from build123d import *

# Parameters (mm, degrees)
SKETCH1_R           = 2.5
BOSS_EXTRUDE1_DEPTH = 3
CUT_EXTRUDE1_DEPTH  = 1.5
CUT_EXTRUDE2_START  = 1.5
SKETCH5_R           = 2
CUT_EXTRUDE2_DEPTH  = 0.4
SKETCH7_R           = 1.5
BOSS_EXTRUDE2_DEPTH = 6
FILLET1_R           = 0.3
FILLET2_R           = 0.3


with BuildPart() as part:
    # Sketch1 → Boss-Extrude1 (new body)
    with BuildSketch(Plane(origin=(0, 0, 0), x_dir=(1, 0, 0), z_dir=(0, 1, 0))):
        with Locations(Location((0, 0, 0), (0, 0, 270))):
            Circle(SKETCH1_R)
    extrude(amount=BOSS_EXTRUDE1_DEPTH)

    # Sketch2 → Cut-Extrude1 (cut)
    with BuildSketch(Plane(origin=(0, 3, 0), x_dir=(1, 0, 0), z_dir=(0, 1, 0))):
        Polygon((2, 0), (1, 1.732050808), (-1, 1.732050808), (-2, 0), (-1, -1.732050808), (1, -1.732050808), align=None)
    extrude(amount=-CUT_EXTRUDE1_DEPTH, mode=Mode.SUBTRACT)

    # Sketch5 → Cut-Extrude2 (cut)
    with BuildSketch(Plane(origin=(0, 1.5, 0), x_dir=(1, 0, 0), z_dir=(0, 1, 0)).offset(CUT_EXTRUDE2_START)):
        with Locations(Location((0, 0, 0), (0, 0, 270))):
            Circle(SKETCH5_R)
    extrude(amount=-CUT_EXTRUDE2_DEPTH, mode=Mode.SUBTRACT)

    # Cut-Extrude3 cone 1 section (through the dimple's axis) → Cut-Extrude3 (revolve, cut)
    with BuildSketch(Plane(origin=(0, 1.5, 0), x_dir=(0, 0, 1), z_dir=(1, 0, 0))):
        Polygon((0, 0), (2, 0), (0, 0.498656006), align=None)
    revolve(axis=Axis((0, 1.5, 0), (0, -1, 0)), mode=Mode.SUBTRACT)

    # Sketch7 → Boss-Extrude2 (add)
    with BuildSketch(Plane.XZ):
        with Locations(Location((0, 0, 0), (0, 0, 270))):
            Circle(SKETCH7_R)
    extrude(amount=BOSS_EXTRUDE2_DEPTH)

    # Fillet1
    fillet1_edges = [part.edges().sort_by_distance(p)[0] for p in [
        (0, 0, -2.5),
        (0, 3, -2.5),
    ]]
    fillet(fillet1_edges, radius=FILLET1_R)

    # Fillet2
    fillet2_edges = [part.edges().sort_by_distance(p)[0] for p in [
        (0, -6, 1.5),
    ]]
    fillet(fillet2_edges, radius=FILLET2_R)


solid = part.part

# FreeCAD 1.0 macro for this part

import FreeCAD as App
import Part
import Sketcher
from FreeCAD import Vector
Q = App.Units.Quantity


def edges_at(feature, points):
    """Names of the edges that pass closest to the given points."""
    edges = feature.Shape.Edges
    near = lambda p: min(range(len(edges)), key=lambda i: edges[i].distToShape(Part.Vertex(*p))[0])
    return sorted({f"Edge{near(p) + 1}" for p in points})


def add_polygon(sketch, points):
    """Adds a closed chain of lines whose ends are joined by coincident constraints."""
    first, n = sketch.GeometryCount, len(points)
    for a, b in zip(points, points[1:] + points[:1]):
        sketch.addGeometry(Part.LineSegment(App.Vector(*a, 0), App.Vector(*b, 0)), False)
    for i in range(n):
        sketch.addConstraint(Sketcher.Constraint("Coincident", first + i, 2, first + (i + 1) % n, 1))

doc = App.newDocument("Part")
params = doc.addObject("Spreadsheet::Sheet", "Params")
for row, (alias, value) in enumerate([
    ("sketch1_diameter", "5 mm"),
    ("pad1_length", "3 mm"),
    ("sketch2_width", "2 mm"),
    ("sketch2_length", "2 mm"),
    ("pocket1_length", "1.5 mm"),
    ("sketch3_diameter", "4 mm"),
    ("pocket2_length", "0.4 mm"),
    ("sketch4_height", "2 mm"),
    ("groove_angle", "360 deg"),
    ("sketch5_diameter", "3 mm"),
    ("pad2_length", "6 mm"),
    ("fillet_radius", "0.3 mm"),
    ("fillet2_radius", "0.3 mm"),
], start=1):
    params.set(f"A{row}", alias)
    params.set(f"B{row}", "=" + value)
    params.setAlias(f"B{row}", alias)

body = doc.addObject("PartDesign::Body", "Body")

# Sketch on XZ plane
sketch1 = body.newObject("Sketcher::SketchObject", "Sketch")
sketch1.AttachmentSupport = (doc.getObject("XZ_Plane"), [""])
sketch1.MapMode = "FlatFace"
sketch1.addGeometry(Part.Circle(Vector(0, 0, 0), Vector(0, 0, 1), 2.5), False)
sketch1.addConstraint(Sketcher.Constraint("Coincident", 0, 3, -1, 1))
sketch1.addConstraint(Sketcher.Constraint("Diameter", 0, 5.0))
sketch1.setExpression("Constraints[1]", "Params.sketch1_diameter")
pad1 = body.newObject("PartDesign::Pad", "Pad")
pad1.Profile = sketch1
pad1.setExpression("Length", "Params.pad1_length")
pad1.Reversed = True

# Sketch on XZ plane
sketch2 = body.newObject("Sketcher::SketchObject", "Sketch001")
sketch2.AttachmentSupport = (doc.getObject("XZ_Plane"), [""])
sketch2.MapMode = "FlatFace"
sketch2.AttachmentOffset = App.Placement(Vector(0, 0, -3), App.Rotation())
add_polygon(sketch2, [(2, 0), (1, -1.7), (-1, -1.7), (-2, 0), (-1, 1.7), (1, 1.7)])  # lines 0-5
sketch2.addConstraint(Sketcher.Constraint("Horizontal", 1))
sketch2.addConstraint(Sketcher.Constraint("Horizontal", 4))
sketch2.addConstraint(Sketcher.Constraint("Symmetric", 0, 2, 3, 2, -1, 1))
sketch2.addConstraint(Sketcher.Constraint("Symmetric", 2, 2, 5, 2, -1, 1))
sketch2.addConstraint(Sketcher.Constraint("PointOnObject", 2, 2, -1))
sketch2.addConstraint(Sketcher.Constraint("Parallel", 2, 5))
sketch2.addConstraint(Sketcher.Constraint("Vertical", 1, 2, 3, 2))
sketch2.addConstraint(Sketcher.Constraint("DistanceX", 1, 2, 1, 1, 2.0))
sketch2.addConstraint(Sketcher.Constraint("Angle", 0, Q("-120 deg")))
sketch2.addConstraint(Sketcher.Constraint("Distance", 0, 2.0))
sketch2.setExpression("Constraints[13]", "Params.sketch2_width")
sketch2.setExpression("Constraints[15]", "Params.sketch2_length")
pocket1 = body.newObject("PartDesign::Pocket", "Pocket")
pocket1.Profile = sketch2
pocket1.setExpression("Length", "Params.pocket1_length")
pocket1.Reversed = True

# Sketch on XZ plane
sketch3 = body.newObject("Sketcher::SketchObject", "Sketch002")
sketch3.AttachmentSupport = (doc.getObject("XZ_Plane"), [""])
sketch3.MapMode = "FlatFace"
sketch3.AttachmentOffset = App.Placement(Vector(0, 0, -3), App.Rotation())
sketch3.addGeometry(Part.Circle(Vector(0, 0, 0), Vector(0, 0, 1), 2), False)
sketch3.addConstraint(Sketcher.Constraint("Coincident", 0, 3, -1, 1))
sketch3.addConstraint(Sketcher.Constraint("Diameter", 0, 4.0))
sketch3.setExpression("Constraints[1]", "Params.sketch3_diameter")
pocket2 = body.newObject("PartDesign::Pocket", "Pocket001")
pocket2.Profile = sketch3
pocket2.setExpression("Length", "Params.pocket2_length")
pocket2.Reversed = True

# Sketch on YZ plane
sketch4 = body.newObject("Sketcher::SketchObject", "Sketch003")
sketch4.AttachmentSupport = (doc.getObject("YZ_Plane"), [""])
sketch4.MapMode = "FlatFace"
add_polygon(sketch4, [(1.5, 0), (1.5, 2), (1, 0)])  # lines 0-2
sketch4.addConstraint(Sketcher.Constraint("Vertical", 0))
sketch4.addConstraint(Sketcher.Constraint("Horizontal", 2))
sketch4.addConstraint(Sketcher.Constraint("PointOnObject", 1, 2, -1))
sketch4.addConstraint(Sketcher.Constraint("DistanceY", 0, 1, 0, 2, 2.0))
sketch4.addConstraint(Sketcher.Constraint("Angle", 1, Q("-104 deg")))
sketch4.addConstraint(Sketcher.Constraint("DistanceX", -1, 1, 0, 2, 1.5))
sketch4.setExpression("Constraints[6]", "Params.sketch4_height")
groove = body.newObject("PartDesign::Groove", "Groove")
groove.Profile = sketch4
groove.ReferenceAxis = (sketch4, ["H_Axis"])
groove.setExpression("Angle", "Params.groove_angle")

# Sketch on XZ plane
sketch5 = body.newObject("Sketcher::SketchObject", "Sketch004")
sketch5.AttachmentSupport = (doc.getObject("XZ_Plane"), [""])
sketch5.MapMode = "FlatFace"
sketch5.addGeometry(Part.Circle(Vector(0, 0, 0), Vector(0, 0, 1), 1.5), False)
sketch5.addConstraint(Sketcher.Constraint("Coincident", 0, 3, -1, 1))
sketch5.addConstraint(Sketcher.Constraint("Diameter", 0, 3.0))
sketch5.setExpression("Constraints[1]", "Params.sketch5_diameter")
pad2 = body.newObject("PartDesign::Pad", "Pad001")
pad2.Profile = sketch5
pad2.setExpression("Length", "Params.pad2_length")
doc.recompute()

fillet = body.newObject("PartDesign::Fillet", "Fillet")
fillet.Base = (pad2, edges_at(pad2, [(0, 0, -2.5), (0, 3, -2.5)]))
fillet.setExpression("Radius", "Params.fillet_radius")
doc.recompute()

fillet2 = body.newObject("PartDesign::Fillet", "Fillet001")
fillet2.Base = (fillet, edges_at(fillet, [(0, -6, 1.5)]))
fillet2.setExpression("Radius", "Params.fillet2_radius")

doc.recompute()
